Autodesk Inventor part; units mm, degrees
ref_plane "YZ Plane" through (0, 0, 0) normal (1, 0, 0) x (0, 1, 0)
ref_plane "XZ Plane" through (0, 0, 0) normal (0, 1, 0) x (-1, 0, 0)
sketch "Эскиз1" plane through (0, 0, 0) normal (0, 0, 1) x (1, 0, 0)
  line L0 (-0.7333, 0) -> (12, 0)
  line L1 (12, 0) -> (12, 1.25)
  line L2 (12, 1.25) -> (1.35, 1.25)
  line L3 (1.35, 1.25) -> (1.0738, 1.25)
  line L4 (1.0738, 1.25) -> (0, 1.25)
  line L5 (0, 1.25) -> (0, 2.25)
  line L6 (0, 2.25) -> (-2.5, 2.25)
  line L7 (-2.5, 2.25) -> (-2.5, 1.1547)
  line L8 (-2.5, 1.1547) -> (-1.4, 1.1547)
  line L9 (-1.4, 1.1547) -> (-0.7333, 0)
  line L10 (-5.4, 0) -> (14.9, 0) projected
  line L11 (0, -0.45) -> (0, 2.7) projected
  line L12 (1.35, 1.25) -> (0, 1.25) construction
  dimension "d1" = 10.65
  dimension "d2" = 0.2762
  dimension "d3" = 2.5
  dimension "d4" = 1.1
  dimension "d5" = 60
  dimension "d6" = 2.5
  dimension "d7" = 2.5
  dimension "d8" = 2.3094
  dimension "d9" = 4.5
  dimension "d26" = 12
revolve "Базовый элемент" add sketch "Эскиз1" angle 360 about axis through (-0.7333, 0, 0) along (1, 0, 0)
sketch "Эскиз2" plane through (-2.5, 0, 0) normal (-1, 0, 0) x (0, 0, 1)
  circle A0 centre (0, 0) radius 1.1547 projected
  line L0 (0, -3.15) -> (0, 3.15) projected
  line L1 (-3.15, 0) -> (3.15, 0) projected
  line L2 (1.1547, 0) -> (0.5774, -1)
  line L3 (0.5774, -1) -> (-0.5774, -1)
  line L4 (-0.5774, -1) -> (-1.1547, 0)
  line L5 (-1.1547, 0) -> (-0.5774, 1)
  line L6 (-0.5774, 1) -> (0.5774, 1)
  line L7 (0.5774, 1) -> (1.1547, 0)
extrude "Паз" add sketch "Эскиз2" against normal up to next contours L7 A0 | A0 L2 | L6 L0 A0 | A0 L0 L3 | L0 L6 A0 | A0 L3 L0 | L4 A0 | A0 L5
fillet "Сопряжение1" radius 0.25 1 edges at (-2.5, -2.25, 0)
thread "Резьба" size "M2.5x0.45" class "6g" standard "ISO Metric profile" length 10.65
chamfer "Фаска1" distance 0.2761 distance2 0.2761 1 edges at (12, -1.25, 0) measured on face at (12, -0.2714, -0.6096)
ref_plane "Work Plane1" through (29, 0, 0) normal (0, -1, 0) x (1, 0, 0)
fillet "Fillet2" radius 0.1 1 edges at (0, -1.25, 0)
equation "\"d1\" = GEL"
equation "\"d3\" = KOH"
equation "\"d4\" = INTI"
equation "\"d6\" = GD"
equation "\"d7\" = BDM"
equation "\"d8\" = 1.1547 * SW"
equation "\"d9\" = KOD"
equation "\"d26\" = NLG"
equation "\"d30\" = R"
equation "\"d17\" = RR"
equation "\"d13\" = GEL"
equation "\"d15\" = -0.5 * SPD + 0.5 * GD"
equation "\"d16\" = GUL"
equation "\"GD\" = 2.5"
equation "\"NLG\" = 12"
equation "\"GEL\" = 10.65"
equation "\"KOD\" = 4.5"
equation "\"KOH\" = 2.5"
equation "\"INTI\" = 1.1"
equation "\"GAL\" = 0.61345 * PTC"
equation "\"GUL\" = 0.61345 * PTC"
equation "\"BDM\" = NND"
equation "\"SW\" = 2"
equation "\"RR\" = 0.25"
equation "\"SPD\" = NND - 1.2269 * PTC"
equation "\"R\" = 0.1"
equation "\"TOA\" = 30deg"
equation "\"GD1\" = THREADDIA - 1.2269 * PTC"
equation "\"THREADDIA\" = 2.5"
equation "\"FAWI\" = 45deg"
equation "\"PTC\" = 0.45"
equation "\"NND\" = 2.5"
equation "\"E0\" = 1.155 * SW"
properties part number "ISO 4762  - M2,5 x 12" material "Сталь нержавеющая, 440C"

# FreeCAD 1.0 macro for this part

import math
import FreeCAD as App
import Part
import Sketcher


def edges_at(feature, points):
    """Names of the edges that pass closest to the given points."""
    edges = feature.Shape.Edges
    near = lambda p: min(range(len(edges)), key=lambda i: edges[i].distToShape(Part.Vertex(*p))[0])
    return sorted({f"Edge{near(p) + 1}" for p in points})


def add_polygon(sketch, points):
    """Adds a closed chain of lines whose ends are joined by coincident constraints."""
    first, n = sketch.GeometryCount, len(points)
    for a, b in zip(points, points[1:] + points[:1]):
        sketch.addGeometry(Part.LineSegment(App.Vector(*a, 0), App.Vector(*b, 0)), False)
    for i in range(n):
        sketch.addConstraint(Sketcher.Constraint("Coincident", first + i, 2, first + (i + 1) % n, 1))

doc = App.newDocument("Part")
body = doc.addObject("PartDesign::Body", "Body")

# Sketch on XY plane
sketch1 = doc.addObject("Sketcher::SketchObject", "Sketch")
body.addObject(sketch1)
sketch1.AttachmentSupport = (doc.XY_Plane, [""])
sketch1.MapMode = "FlatFace"
add_polygon(sketch1, [(-1.4, 1.2), (-0.7, 0), (12, 0), (12, 1.2), (0, 1.2), (0, 2.2), (-2.5, 2.2), (-2.5, 1.2)])  # lines 0-7
sketch1.addConstraint([
    Sketcher.Constraint("Horizontal", 1),
    Sketcher.Constraint("Vertical", 2),
    Sketcher.Constraint("Horizontal", 3),
    Sketcher.Constraint("Vertical", 4),
    Sketcher.Constraint("Horizontal", 5),
    Sketcher.Constraint("Vertical", 6),
    Sketcher.Constraint("Horizontal", 7),
    Sketcher.Constraint("PointOnObject", 0, 2, -1),
    Sketcher.Constraint("PointOnObject", 3, 2, -2),
    Sketcher.Constraint("DistanceX", 3, 2, 3, 1, 12.0),
    Sketcher.Constraint("DistanceX", 5, 2, 5, 1, 2.5),
    Sketcher.Constraint("DistanceX", 7, 1, 7, 2, 1.1),
    Sketcher.Constraint("DistanceY", 4, 1, 4, 2, 1.0),
    Sketcher.Constraint("DistanceY", 2, 1, 2, 2, 1.25),
    Sketcher.Constraint("DistanceX", 1, 1, 1, 2, 12.7333),
    Sketcher.Constraint("DistanceY", 6, 2, 6, 1, 1.0953),
])
revolution = doc.addObject("PartDesign::Revolution", "Revolution")
body.addObject(revolution)
revolution.Profile = sketch1
revolution.ReferenceAxis = (sketch1, ["H_Axis"])
revolution.Angle = 360

# Sketch on YZ plane
sketch2 = doc.addObject("Sketcher::SketchObject", "Sketch001")
body.addObject(sketch2)
sketch2.AttachmentSupport = (doc.YZ_Plane, [""])
sketch2.MapMode = "FlatFace"
sketch2.AttachmentOffset = App.Placement(App.Vector(0, 0, -2.5), App.Rotation())
sketch2.addGeometry([
    Part.LineSegment(App.Vector(1, 0.6, 0), App.Vector(0, 1.2, 0)),  # 0
    Part.ArcOfCircle(Part.Circle(App.Vector(0, 0, 0), App.Vector(0, 0, 1), 1.2), math.radians(30), math.radians(90)),  # 1
    Part.ArcOfCircle(Part.Circle(App.Vector(0, 0, 0), App.Vector(0, 0, 1), 1.2), math.radians(90), math.radians(150)),  # 2
    Part.LineSegment(App.Vector(0, 1.2, 0), App.Vector(-1, 0.6, 0)),  # 3
    Part.ArcOfCircle(Part.Circle(App.Vector(0, 0, 0), App.Vector(0, 0, 1), 1.2), math.radians(-30), math.radians(30)),  # 4
    Part.LineSegment(App.Vector(1, 0.6, 0), App.Vector(1, -0.6, 0)),  # 5
    Part.LineSegment(App.Vector(-1, 0.6, 0), App.Vector(-1, -0.6, 0)),  # 6
    Part.ArcOfCircle(Part.Circle(App.Vector(0, 0, 0), App.Vector(0, 0, 1), 1.2), math.radians(150), math.radians(210)),  # 7
    Part.LineSegment(App.Vector(-1, -0.6, 0), App.Vector(0, -1.2, 0)),  # 8
    Part.ArcOfCircle(Part.Circle(App.Vector(0, 0, 0), App.Vector(0, 0, 1), 1.2), math.radians(-150), math.radians(-90)),  # 9
    Part.ArcOfCircle(Part.Circle(App.Vector(0, 0, 0), App.Vector(0, 0, 1), 1.2), math.radians(-90), math.radians(-30)),  # 10
    Part.LineSegment(App.Vector(0, -1.2, 0), App.Vector(1, -0.6, 0)),  # 11
], False)
sketch2.addConstraint([
    Sketcher.Constraint("Coincident", 0, 1, 1, 1),
    Sketcher.Constraint("Coincident", 1, 2, 0, 2),
    Sketcher.Constraint("Coincident", 2, 1, 3, 1),
    Sketcher.Constraint("Coincident", 3, 2, 2, 2),
    Sketcher.Constraint("Coincident", 4, 1, 5, 2),
    Sketcher.Constraint("Coincident", 5, 1, 4, 2),
    Sketcher.Constraint("Coincident", 6, 1, 7, 1),
    Sketcher.Constraint("Coincident", 7, 2, 6, 2),
    Sketcher.Constraint("Coincident", 8, 1, 9, 1),
    Sketcher.Constraint("Coincident", 9, 2, 8, 2),
    Sketcher.Constraint("Coincident", 10, 1, 11, 1),
    Sketcher.Constraint("Coincident", 11, 2, 10, 2),
    Sketcher.Constraint("Vertical", 5),
    Sketcher.Constraint("Vertical", 6),
    Sketcher.Constraint("Coincident", 1, 3, -1, 1),
    Sketcher.Constraint("Coincident", 2, 3, -1, 1),
    Sketcher.Constraint("Coincident", 4, 3, -1, 1),
    Sketcher.Constraint("Coincident", 7, 3, -1, 1),
    Sketcher.Constraint("Coincident", 9, 3, -1, 1),
    Sketcher.Constraint("Coincident", 10, 3, -1, 1),
    Sketcher.Constraint("Coincident", 2, 1, 1, 2),
    Sketcher.Constraint("Coincident", 5, 1, 0, 1),
    Sketcher.Constraint("Coincident", 6, 1, 3, 2),
    Sketcher.Constraint("Coincident", 8, 1, 7, 2),
    Sketcher.Constraint("Coincident", 10, 1, 9, 2),
    Sketcher.Constraint("PointOnObject", 1, 2, -2),
    Sketcher.Constraint("PointOnObject", 9, 2, -2),
    Sketcher.Constraint("Parallel", 0, 8),
    Sketcher.Constraint("Parallel", 3, 11),
    Sketcher.Constraint("DistanceX", -1, 1, 0, 1, 1.0),
    Sketcher.Constraint("Radius", 1, 1.1547),
])
pad1 = doc.addObject("PartDesign::Pad", "Pad")
body.addObject(pad1)
pad1.Profile = sketch2
pad1.Type = "UpToFirst"
doc.recompute()

fillet = doc.addObject("PartDesign::Fillet", "Fillet")
body.addObject(fillet)
fillet.Base = (pad1, edges_at(pad1, [(-2.5, -2.25, 0)]))
fillet.Radius = 0.25
doc.recompute()

chamfer = doc.addObject("PartDesign::Chamfer", "Chamfer")
body.addObject(chamfer)
chamfer.Base = (fillet, edges_at(fillet, [(12, -1.25, 0)]))
chamfer.ChamferType = "Two distances"
chamfer.Size = 0.2761
chamfer.Size2 = 0.2761
doc.recompute()

fillet2 = doc.addObject("PartDesign::Fillet", "Fillet001")
body.addObject(fillet2)
fillet2.Base = (chamfer, edges_at(chamfer, [(0, -1.25, 0)]))
fillet2.Radius = 0.1

doc.recompute()
